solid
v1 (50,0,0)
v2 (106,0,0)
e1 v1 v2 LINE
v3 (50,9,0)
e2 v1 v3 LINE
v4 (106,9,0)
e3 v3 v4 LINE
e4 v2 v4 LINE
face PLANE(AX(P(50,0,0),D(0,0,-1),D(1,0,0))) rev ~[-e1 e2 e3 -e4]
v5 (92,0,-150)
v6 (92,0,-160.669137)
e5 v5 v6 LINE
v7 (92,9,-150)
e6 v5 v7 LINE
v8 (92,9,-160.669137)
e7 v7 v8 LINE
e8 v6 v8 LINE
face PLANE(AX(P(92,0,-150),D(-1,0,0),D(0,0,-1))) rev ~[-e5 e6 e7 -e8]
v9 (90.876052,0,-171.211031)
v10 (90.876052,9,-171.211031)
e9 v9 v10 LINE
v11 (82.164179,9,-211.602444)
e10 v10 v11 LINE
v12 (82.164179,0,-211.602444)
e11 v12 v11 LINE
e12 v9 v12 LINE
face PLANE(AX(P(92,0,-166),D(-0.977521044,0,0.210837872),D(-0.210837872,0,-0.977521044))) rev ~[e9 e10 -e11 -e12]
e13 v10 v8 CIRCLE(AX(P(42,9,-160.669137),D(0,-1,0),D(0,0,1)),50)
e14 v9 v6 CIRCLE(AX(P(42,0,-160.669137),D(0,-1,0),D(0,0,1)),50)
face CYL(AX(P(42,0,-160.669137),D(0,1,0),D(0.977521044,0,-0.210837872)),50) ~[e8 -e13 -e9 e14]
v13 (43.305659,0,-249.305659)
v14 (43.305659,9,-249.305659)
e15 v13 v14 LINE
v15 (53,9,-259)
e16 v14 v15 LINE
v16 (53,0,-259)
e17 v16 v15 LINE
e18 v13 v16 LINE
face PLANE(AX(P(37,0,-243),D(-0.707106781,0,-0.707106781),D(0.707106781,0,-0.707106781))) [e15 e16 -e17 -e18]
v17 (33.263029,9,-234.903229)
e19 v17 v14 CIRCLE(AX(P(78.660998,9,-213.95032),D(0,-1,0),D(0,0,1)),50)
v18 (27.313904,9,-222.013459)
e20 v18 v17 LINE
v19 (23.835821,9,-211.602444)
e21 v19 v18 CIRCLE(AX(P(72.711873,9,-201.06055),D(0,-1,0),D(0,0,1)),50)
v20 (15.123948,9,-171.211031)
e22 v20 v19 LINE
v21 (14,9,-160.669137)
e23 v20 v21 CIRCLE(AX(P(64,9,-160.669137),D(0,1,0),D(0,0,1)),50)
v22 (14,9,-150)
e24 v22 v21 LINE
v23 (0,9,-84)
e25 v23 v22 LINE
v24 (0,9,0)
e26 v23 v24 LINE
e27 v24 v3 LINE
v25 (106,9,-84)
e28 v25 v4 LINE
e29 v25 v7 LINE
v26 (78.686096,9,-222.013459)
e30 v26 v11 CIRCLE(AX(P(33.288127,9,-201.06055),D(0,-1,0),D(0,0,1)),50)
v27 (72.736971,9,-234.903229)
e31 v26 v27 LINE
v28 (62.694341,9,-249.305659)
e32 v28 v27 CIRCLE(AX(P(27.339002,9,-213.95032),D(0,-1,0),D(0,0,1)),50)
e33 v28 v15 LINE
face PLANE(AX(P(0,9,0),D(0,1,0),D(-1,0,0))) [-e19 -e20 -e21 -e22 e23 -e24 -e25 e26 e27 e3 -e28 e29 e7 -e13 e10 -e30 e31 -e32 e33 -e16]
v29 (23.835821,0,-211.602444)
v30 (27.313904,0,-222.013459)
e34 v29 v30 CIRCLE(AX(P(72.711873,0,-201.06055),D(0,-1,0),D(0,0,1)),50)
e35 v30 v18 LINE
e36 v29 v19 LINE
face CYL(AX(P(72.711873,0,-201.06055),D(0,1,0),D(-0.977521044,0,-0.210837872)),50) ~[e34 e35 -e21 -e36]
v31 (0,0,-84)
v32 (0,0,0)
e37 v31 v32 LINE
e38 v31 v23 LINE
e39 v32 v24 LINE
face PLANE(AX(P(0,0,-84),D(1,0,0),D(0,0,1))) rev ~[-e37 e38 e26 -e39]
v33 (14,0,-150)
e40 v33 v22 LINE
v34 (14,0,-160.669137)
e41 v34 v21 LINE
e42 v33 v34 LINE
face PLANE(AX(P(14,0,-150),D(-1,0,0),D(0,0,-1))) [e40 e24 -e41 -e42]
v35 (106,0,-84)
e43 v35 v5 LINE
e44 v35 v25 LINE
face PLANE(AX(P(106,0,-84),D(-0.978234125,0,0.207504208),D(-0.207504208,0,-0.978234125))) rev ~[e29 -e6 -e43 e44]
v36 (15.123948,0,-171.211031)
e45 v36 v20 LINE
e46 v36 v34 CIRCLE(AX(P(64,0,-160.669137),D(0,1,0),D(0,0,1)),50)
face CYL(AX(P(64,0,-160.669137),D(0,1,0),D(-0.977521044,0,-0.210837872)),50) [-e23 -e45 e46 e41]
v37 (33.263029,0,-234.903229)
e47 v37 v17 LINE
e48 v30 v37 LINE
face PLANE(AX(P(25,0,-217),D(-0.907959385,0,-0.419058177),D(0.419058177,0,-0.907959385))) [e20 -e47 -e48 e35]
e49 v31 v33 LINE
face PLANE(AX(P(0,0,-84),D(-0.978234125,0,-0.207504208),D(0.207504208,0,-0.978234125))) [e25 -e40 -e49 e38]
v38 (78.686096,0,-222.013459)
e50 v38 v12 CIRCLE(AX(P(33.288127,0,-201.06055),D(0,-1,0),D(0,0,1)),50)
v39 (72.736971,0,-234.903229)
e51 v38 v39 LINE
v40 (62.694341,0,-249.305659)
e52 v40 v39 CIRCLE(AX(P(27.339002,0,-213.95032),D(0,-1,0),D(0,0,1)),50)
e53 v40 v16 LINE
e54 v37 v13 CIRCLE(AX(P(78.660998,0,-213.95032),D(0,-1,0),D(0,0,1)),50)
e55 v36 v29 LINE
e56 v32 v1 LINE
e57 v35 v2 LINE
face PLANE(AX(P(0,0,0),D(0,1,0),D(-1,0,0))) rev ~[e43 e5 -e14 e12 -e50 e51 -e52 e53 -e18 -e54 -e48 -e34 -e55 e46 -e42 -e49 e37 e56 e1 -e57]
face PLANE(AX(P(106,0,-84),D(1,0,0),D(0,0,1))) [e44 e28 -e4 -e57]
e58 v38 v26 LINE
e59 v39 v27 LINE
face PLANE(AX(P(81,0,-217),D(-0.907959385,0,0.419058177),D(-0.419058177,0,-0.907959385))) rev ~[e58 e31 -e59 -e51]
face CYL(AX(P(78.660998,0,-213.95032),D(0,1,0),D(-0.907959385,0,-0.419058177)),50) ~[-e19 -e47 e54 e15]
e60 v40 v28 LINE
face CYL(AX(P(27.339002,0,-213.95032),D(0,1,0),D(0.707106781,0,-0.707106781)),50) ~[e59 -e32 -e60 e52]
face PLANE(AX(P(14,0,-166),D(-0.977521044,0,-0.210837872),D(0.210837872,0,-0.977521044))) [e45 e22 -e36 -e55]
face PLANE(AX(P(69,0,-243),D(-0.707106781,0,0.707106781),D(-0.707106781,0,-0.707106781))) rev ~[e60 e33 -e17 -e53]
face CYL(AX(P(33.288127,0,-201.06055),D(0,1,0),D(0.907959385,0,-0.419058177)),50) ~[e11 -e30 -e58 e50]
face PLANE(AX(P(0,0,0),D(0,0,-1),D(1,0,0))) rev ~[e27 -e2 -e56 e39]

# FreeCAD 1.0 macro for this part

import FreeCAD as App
import Part
import Sketcher


def edges_at(feature, points):
    """Names of the edges that pass closest to the given points."""
    edges = feature.Shape.Edges
    near = lambda p: min(range(len(edges)), key=lambda i: edges[i].distToShape(Part.Vertex(*p))[0])
    return sorted({f"Edge{near(p) + 1}" for p in points})


def add_polygon(sketch, points):
    """Adds a closed chain of lines whose ends are joined by coincident constraints."""
    first, n = sketch.GeometryCount, len(points)
    for a, b in zip(points, points[1:] + points[:1]):
        sketch.addGeometry(Part.LineSegment(App.Vector(*a, 0), App.Vector(*b, 0)), False)
    for i in range(n):
        sketch.addConstraint(Sketcher.Constraint("Coincident", first + i, 2, first + (i + 1) % n, 1))

doc = App.newDocument("Part")
body = doc.addObject("PartDesign::Body", "Body")

# Sketch on XZ plane
sketch1 = doc.addObject("Sketcher::SketchObject", "Sketch")
body.addObject(sketch1)
sketch1.AttachmentSupport = (doc.XZ_Plane, [""])
sketch1.MapMode = "FlatFace"
add_polygon(sketch1, [(0, -84), (0, 0), (106, 0), (106, -84), (92, -150), (92, -166), (81, -217), (69, -243), (53, -259), (37, -243), (25, -217), (14, -166), (14, -150)])  # lines 0-12
sketch1.addConstraint(Sketcher.Constraint("Vertical", 0))
sketch1.addConstraint(Sketcher.Constraint("Horizontal", 1))
sketch1.addConstraint(Sketcher.Constraint("Vertical", 2))
sketch1.addConstraint(Sketcher.Constraint("Vertical", 4))
sketch1.addConstraint(Sketcher.Constraint("Vertical", 11))
sketch1.addConstraint(Sketcher.Constraint("Coincident", 0, 2, -1, 1))
sketch1.addConstraint(Sketcher.Constraint("Perpendicular", 7, 8))
sketch1.addConstraint(Sketcher.Constraint("Horizontal", 6, 2, 8, 2))
sketch1.addConstraint(Sketcher.Constraint("Horizontal", 5, 2, 9, 2))
sketch1.addConstraint(Sketcher.Constraint("Horizontal", 4, 2, 10, 2))
sketch1.addConstraint(Sketcher.Constraint("Horizontal", 3, 2, 11, 2))
sketch1.addConstraint(Sketcher.Constraint("Horizontal", 2, 2, 12, 2))
sketch1.addConstraint(Sketcher.Constraint("Equal", 7, 8))
sketch1.addConstraint(Sketcher.Constraint("Equal", 6, 9))
sketch1.addConstraint(Sketcher.Constraint("Equal", 5, 10))
sketch1.addConstraint(Sketcher.Constraint("Equal", 3, 12))
sketch1.addConstraint(Sketcher.Constraint("DistanceX", 1, 1, 1, 2, 106.0))
sketch1.addConstraint(Sketcher.Constraint("DistanceY", 0, 1, 0, 2, 84.0))
sketch1.addConstraint(Sketcher.Constraint("DistanceY", 4, 2, 4, 1, 16.0))
sketch1.addConstraint(Sketcher.Constraint("DistanceX", -1, 1, 3, 2, 92.0))
sketch1.addConstraint(Sketcher.Constraint("DistanceY", 3, 2, -1, 1, 150.0))
sketch1.addConstraint(Sketcher.Constraint("DistanceX", -1, 1, 5, 2, 81.0))
sketch1.addConstraint(Sketcher.Constraint("DistanceY", 5, 2, -1, 1, 217.0))
sketch1.addConstraint(Sketcher.Constraint("DistanceX", -1, 1, 6, 2, 69.0))
sketch1.addConstraint(Sketcher.Constraint("DistanceY", 6, 2, -1, 1, 243.0))
pad1 = doc.addObject("PartDesign::Pad", "Pad")
body.addObject(pad1)
pad1.Profile = sketch1
pad1.Length = 9
pad1.Reversed = True
doc.recompute()

fillet = doc.addObject("PartDesign::Fillet", "Fillet")
body.addObject(fillet)
fillet.Base = (pad1, edges_at(pad1, [(92, 4.5, -166)]))
fillet.Radius = 50
doc.recompute()

fillet2 = doc.addObject("PartDesign::Fillet", "Fillet001")
body.addObject(fillet2)
fillet2.Base = (fillet, edges_at(fillet, [(14, 4.5, -166)]))
fillet2.Radius = 50
doc.recompute()

fillet3 = doc.addObject("PartDesign::Fillet", "Fillet002")
body.addObject(fillet3)
fillet3.Base = (fillet2, edges_at(fillet2, [
    (25, 4.5, -217),
    (81, 4.5, -217),
    (69, 4.5, -243),
    (37, 4.5, -243),
]))
fillet3.Radius = 50

doc.recompute()
